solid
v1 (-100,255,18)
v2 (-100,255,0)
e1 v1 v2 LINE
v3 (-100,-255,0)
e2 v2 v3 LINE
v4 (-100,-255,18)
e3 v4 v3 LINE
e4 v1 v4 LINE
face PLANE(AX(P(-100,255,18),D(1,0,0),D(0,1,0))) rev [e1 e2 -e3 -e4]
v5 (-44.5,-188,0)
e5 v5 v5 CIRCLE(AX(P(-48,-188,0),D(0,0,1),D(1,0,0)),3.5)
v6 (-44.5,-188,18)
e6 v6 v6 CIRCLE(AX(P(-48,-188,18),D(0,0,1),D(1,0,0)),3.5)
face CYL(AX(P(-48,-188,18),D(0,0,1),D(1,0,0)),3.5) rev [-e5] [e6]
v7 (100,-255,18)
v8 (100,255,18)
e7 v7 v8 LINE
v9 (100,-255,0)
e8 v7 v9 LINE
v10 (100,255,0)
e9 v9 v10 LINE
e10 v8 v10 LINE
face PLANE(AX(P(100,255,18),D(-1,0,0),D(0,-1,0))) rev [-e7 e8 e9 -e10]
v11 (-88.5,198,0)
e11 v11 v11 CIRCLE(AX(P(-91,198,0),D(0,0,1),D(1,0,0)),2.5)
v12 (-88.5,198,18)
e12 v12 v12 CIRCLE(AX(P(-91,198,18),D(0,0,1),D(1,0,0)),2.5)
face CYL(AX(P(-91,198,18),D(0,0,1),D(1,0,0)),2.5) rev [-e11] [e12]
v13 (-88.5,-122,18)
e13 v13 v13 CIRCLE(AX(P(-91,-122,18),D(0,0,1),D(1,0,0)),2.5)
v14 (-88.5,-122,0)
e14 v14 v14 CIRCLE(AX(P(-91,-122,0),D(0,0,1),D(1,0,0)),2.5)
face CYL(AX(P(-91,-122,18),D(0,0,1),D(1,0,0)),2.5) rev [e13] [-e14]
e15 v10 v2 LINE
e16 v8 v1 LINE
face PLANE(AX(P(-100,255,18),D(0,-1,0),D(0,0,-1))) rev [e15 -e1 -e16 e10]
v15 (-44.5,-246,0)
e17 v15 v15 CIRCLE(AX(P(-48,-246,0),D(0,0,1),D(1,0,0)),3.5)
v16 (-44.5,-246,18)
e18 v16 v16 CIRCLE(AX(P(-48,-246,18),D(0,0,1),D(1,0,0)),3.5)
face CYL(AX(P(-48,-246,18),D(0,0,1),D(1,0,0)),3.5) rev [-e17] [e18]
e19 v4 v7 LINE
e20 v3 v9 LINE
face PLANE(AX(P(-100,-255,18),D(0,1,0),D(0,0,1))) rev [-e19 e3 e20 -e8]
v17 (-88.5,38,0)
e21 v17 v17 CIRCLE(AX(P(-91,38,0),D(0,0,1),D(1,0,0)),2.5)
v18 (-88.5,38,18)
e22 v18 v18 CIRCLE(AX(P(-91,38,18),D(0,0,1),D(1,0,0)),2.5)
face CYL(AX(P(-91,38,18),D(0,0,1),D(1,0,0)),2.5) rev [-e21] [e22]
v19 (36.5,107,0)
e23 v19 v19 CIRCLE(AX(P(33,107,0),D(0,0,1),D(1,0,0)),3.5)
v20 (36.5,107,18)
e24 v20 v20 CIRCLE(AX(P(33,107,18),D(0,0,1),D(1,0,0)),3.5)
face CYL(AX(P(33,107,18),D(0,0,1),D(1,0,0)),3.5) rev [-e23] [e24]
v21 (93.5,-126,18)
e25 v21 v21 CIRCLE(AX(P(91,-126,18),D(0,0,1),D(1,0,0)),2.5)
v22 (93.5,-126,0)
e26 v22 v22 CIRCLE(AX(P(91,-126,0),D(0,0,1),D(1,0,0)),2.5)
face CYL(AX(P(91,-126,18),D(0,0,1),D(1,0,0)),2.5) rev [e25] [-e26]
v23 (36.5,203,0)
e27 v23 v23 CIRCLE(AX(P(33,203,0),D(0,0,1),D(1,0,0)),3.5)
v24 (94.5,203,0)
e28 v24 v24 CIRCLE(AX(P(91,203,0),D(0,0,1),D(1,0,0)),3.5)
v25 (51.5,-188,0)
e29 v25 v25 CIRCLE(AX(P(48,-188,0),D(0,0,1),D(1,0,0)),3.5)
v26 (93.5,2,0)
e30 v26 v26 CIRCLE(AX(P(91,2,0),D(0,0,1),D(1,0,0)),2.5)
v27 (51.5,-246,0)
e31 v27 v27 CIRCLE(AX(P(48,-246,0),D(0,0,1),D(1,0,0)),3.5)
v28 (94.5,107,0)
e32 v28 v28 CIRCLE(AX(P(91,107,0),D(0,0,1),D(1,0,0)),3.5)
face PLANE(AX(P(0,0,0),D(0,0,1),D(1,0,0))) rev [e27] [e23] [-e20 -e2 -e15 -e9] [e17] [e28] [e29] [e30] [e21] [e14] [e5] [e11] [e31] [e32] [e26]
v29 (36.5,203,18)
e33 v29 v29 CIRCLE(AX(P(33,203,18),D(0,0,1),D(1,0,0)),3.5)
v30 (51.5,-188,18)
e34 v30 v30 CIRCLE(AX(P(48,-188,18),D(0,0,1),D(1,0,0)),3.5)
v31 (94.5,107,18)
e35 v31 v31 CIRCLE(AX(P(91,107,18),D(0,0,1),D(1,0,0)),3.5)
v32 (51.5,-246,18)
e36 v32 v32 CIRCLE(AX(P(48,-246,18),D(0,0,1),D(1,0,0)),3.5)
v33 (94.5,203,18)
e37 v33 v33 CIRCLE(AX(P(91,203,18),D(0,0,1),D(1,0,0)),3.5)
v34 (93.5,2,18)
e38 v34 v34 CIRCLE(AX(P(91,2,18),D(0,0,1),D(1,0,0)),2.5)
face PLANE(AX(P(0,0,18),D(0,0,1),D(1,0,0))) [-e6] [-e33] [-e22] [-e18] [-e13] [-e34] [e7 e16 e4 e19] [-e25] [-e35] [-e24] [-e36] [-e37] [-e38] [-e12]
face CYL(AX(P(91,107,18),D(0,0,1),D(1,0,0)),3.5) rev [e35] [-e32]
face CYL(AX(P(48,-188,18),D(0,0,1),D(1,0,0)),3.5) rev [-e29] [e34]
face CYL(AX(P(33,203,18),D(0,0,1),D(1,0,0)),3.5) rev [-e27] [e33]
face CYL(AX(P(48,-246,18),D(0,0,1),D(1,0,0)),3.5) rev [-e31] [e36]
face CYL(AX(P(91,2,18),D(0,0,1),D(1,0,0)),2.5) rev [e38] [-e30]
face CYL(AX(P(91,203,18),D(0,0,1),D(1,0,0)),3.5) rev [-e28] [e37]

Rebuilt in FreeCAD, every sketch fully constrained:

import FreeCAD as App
import Part
import Sketcher
Q = App.Units.Quantity


def add_polygon(sketch, points):
    """Adds a closed chain of lines whose ends are joined by coincident constraints."""
    first, n = sketch.GeometryCount, len(points)
    for a, b in zip(points, points[1:] + points[:1]):
        sketch.addGeometry(Part.LineSegment(App.Vector(*a, 0), App.Vector(*b, 0)), False)
    for i in range(n):
        sketch.addConstraint(Sketcher.Constraint("Coincident", first + i, 2, first + (i + 1) % n, 1))

doc = App.newDocument("Part")
body = doc.addObject("PartDesign::Body", "Body")

# Sketch on XY plane
sketch1 = body.newObject("Sketcher::SketchObject", "Sketch")
sketch1.AttachmentSupport = (doc.getObject("XY_Plane"), [""])
sketch1.MapMode = "FlatFace"
add_polygon(sketch1, [(-100, 255), (-100, -255), (100, -255), (100, 255)])  # lines 0-3
sketch1.addConstraint([
    Sketcher.Constraint("Vertical", 0),
    Sketcher.Constraint("Horizontal", 1),
    Sketcher.Constraint("Vertical", 2),
    Sketcher.Constraint("Horizontal", 3),
    Sketcher.Constraint("Symmetric", 0, 2, 2, 2, -1, 1),
    Sketcher.Constraint("DistanceX", 1, 1, 1, 2, Q("200 mm")),
    Sketcher.Constraint("DistanceY", 0, 2, 0, 1, Q("510 mm")),
])
pad1 = body.newObject("PartDesign::Pad", "Pad")
pad1.Profile = sketch1
pad1.Length = 18

# Sketch on XY plane
sketch2 = body.newObject("Sketcher::SketchObject", "Sketch001")
sketch2.AttachmentSupport = (doc.getObject("XY_Plane"), [""])
sketch2.MapMode = "FlatFace"
sketch2.AttachmentOffset = App.Placement(App.Vector(0, 0, 18), App.Rotation())
sketch2.addGeometry([
    Part.Circle(App.Vector(33, 203, 0), App.Vector(0, 0, 1), 3.5),
    Part.Circle(App.Vector(33, 107, 0), App.Vector(0, 0, 1), 3.5),
    Part.Circle(App.Vector(91, 203, 0), App.Vector(0, 0, 1), 3.5),
    Part.Circle(App.Vector(91, 107, 0), App.Vector(0, 0, 1), 3.5),
], False)
sketch2.addConstraint([
    Sketcher.Constraint("Equal", 0, 1),
    Sketcher.Constraint("Equal", 1, 2),
    Sketcher.Constraint("Equal", 2, 3),
    Sketcher.Constraint("Horizontal", 0, 3, 2, 3),
    Sketcher.Constraint("Horizontal", 1, 3, 3, 3),
    Sketcher.Constraint("Vertical", 0, 3, 1, 3),
    Sketcher.Constraint("Vertical", 2, 3, 3, 3),
    Sketcher.Constraint("Diameter", 0, Q("7 mm")),
    Sketcher.Constraint("DistanceX", -1, 1, 0, 3, Q("33 mm")),
    Sketcher.Constraint("DistanceY", -1, 1, 0, 3, Q("203 mm")),
    Sketcher.Constraint("DistanceY", -1, 1, 1, 3, Q("107 mm")),
    Sketcher.Constraint("DistanceX", -1, 1, 2, 3, Q("91 mm")),
])
doc.recompute()
hole = body.newObject("PartDesign::Hole", "Hole")
hole.Profile = sketch2
hole.ThreadType = "None"
hole.Diameter = 7
hole.DepthType = "ThroughAll"

# Sketch on XY plane
sketch3 = body.newObject("Sketcher::SketchObject", "Sketch002")
sketch3.AttachmentSupport = (doc.getObject("XY_Plane"), [""])
sketch3.MapMode = "FlatFace"
sketch3.AttachmentOffset = App.Placement(App.Vector(0, 0, 18), App.Rotation())
sketch3.addGeometry([
    Part.Circle(App.Vector(-91, 198, 0), App.Vector(0, 0, 1), 2.5),
    Part.Circle(App.Vector(-91, 38, 0), App.Vector(0, 0, 1), 2.5),
    Part.Circle(App.Vector(-91, -122, 0), App.Vector(0, 0, 1), 2.5),
], False)
sketch3.addConstraint([
    Sketcher.Constraint("Equal", 0, 1),
    Sketcher.Constraint("Equal", 1, 2),
    Sketcher.Constraint("Vertical", 0, 3, 1, 3),
    Sketcher.Constraint("Vertical", 1, 3, 2, 3),
    Sketcher.Constraint("Diameter", 0, Q("5 mm")),
    Sketcher.Constraint("DistanceX", 0, 3, -1, 1, Q("91 mm")),
    Sketcher.Constraint("DistanceY", -1, 1, 0, 3, Q("198 mm")),
    Sketcher.Constraint("DistanceY", -1, 1, 1, 3, Q("38 mm")),
    Sketcher.Constraint("DistanceY", 2, 3, -1, 1, Q("122 mm")),
])
doc.recompute()
hole2 = body.newObject("PartDesign::Hole", "Hole001")
hole2.Profile = sketch3
hole2.ThreadType = "None"
hole2.Diameter = 5
hole2.DepthType = "ThroughAll"

# Sketch on XY plane
sketch4 = body.newObject("Sketcher::SketchObject", "Sketch003")
sketch4.AttachmentSupport = (doc.getObject("XY_Plane"), [""])
sketch4.MapMode = "FlatFace"
sketch4.AttachmentOffset = App.Placement(App.Vector(0, 0, 18), App.Rotation())
sketch4.addGeometry([
    Part.Circle(App.Vector(91, 2, 0), App.Vector(0, 0, 1), 2.5),
    Part.Circle(App.Vector(91, -126, 0), App.Vector(0, 0, 1), 2.5),
], False)
sketch4.addConstraint([
    Sketcher.Constraint("Equal", 0, 1),
    Sketcher.Constraint("Vertical", 0, 3, 1, 3),
    Sketcher.Constraint("Diameter", 0, Q("5 mm")),
    Sketcher.Constraint("DistanceX", -1, 1, 0, 3, Q("91 mm")),
    Sketcher.Constraint("DistanceY", -1, 1, 0, 3, Q("2 mm")),
    Sketcher.Constraint("DistanceY", 1, 3, -1, 1, Q("126 mm")),
])
doc.recompute()
hole3 = body.newObject("PartDesign::Hole", "Hole002")
hole3.Profile = sketch4
hole3.ThreadType = "None"
hole3.Diameter = 5
hole3.DepthType = "ThroughAll"

# Sketch on XY plane
sketch5 = body.newObject("Sketcher::SketchObject", "Sketch004")
sketch5.AttachmentSupport = (doc.getObject("XY_Plane"), [""])
sketch5.MapMode = "FlatFace"
sketch5.AttachmentOffset = App.Placement(App.Vector(0, 0, 18), App.Rotation())
sketch5.addGeometry([
    Part.Circle(App.Vector(48, -188, 0), App.Vector(0, 0, 1), 3.5),
    Part.Circle(App.Vector(-48, -188, 0), App.Vector(0, 0, 1), 3.5),
    Part.Circle(App.Vector(48, -246, 0), App.Vector(0, 0, 1), 3.5),
    Part.Circle(App.Vector(-48, -246, 0), App.Vector(0, 0, 1), 3.5),
], False)
sketch5.addConstraint([
    Sketcher.Constraint("Equal", 0, 1),
    Sketcher.Constraint("Equal", 1, 2),
    Sketcher.Constraint("Equal", 2, 3),
    Sketcher.Constraint("Symmetric", 0, 3, 1, 3, -2),
    Sketcher.Constraint("Symmetric", 2, 3, 3, 3, -2),
    Sketcher.Constraint("Vertical", 0, 3, 2, 3),
    Sketcher.Constraint("Diameter", 0, Q("7 mm")),
    Sketcher.Constraint("DistanceX", -1, 1, 0, 3, Q("48 mm")),
    Sketcher.Constraint("DistanceY", 0, 3, -1, 1, Q("188 mm")),
    Sketcher.Constraint("DistanceY", 2, 3, -1, 1, Q("246 mm")),
])
doc.recompute()
hole4 = body.newObject("PartDesign::Hole", "Hole003")
hole4.Profile = sketch5
hole4.ThreadType = "None"
hole4.Diameter = 7
hole4.DepthType = "ThroughAll"

doc.recompute()
